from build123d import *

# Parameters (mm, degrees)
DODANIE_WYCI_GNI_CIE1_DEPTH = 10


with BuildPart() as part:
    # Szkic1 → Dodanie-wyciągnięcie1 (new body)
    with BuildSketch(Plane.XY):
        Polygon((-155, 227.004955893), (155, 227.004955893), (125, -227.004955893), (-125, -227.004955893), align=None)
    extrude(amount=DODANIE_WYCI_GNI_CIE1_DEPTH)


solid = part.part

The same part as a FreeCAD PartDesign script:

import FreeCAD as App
import Part
import Sketcher

V = App.Vector
Q = App.Units.Quantity


def add_polygon(sketch, points):
    """Adds a closed chain of lines whose ends are joined by coincident constraints."""
    first, n = sketch.GeometryCount, len(points)
    for a, b in zip(points, points[1:] + points[:1]):
        sketch.addGeometry(Part.LineSegment(App.Vector(*a, 0), App.Vector(*b, 0)), False)
    for i in range(n):
        sketch.addConstraint(Sketcher.Constraint("Coincident", first + i, 2, first + (i + 1) % n, 1))

doc = App.newDocument("Part")
params = doc.addObject("Spreadsheet::Sheet", "Params")
for row, (alias, value) in enumerate([
    ("sketch1_width", "310 mm"),
    ("sketch1_width2", "250 mm"),
    ("sketch1_length", "455 mm"),
    ("pad1_length", "10 mm"),
], start=1):
    params.set(f"A{row}", alias)
    params.set(f"B{row}", "=" + value)
    params.setAlias(f"B{row}", alias)

body = doc.addObject("PartDesign::Body", "Body")

# Sketch on XY plane
sketch1 = body.newObject("Sketcher::SketchObject", "Sketch")
sketch1.AttachmentSupport = (doc.getObject("XY_Plane"), [""])
sketch1.MapMode = "FlatFace"
add_polygon(sketch1, [(155, 227), (-155, 227), (-125, -227), (125, -227)])  # lines 0-3
sketch1.addConstraint(Sketcher.Constraint("Horizontal", 0))
sketch1.addConstraint(Sketcher.Constraint("Horizontal", 2))
sketch1.addConstraint(Sketcher.Constraint("Equal", 1, 3))
sketch1.addConstraint(Sketcher.Constraint("DistanceX", 0, 2, 0, 1, Q("310 mm")))
sketch1.addConstraint(Sketcher.Constraint("DistanceX", 2, 1, 2, 2, Q("250 mm")))
sketch1.addConstraint(Sketcher.Constraint("Distance", 1, Q("455 mm")))
sketch1.addConstraint(Sketcher.Constraint("DistanceX", 0, 2, -1, 1, Q("155 mm")))
sketch1.addConstraint(Sketcher.Constraint("DistanceY", -1, 1, 0, 2, Q("227.004956 mm")))
sketch1.setExpression("Constraints[7]", "Params.sketch1_width")
sketch1.setExpression("Constraints[8]", "Params.sketch1_width2")
sketch1.setExpression("Constraints[9]", "Params.sketch1_length")
pad1 = body.newObject("PartDesign::Pad", "Pad")
pad1.Profile = sketch1
pad1.setExpression("Length", "Params.pad1_length")

doc.recompute()
